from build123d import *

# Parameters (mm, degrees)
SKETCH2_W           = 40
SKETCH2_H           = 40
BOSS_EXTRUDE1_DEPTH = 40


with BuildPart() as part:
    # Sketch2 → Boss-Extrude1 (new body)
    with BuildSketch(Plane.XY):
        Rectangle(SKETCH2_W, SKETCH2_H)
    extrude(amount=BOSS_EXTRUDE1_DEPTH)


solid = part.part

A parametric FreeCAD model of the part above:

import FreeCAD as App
import Part
import Sketcher

V = App.Vector
Q = App.Units.Quantity

doc = App.newDocument("Part")
body = doc.addObject("PartDesign::Body", "Body")

# Sketch on XY plane
sketch1 = body.newObject("Sketcher::SketchObject", "Sketch")
sketch1.AttachmentSupport = (doc.getObject("XY_Plane"), [""])
sketch1.MapMode = "FlatFace"
sketch1.addGeometry([
    Part.LineSegment(V(-20, 20, 0), V(-20, -20, 0)),
    Part.LineSegment(V(-20, -20, 0), V(20, -20, 0)),
    Part.LineSegment(V(20, -20, 0), V(20, 20, 0)),
    Part.LineSegment(V(20, 20, 0), V(-20, 20, 0)),
], False)
sketch1.addConstraint([
    Sketcher.Constraint("Coincident", 0, 2, 1, 1),
    Sketcher.Constraint("Coincident", 1, 2, 2, 1),
    Sketcher.Constraint("Coincident", 2, 2, 3, 1),
    Sketcher.Constraint("Coincident", 3, 2, 0, 1),
    Sketcher.Constraint("Vertical", 0),
    Sketcher.Constraint("Horizontal", 1),
    Sketcher.Constraint("Vertical", 2),
    Sketcher.Constraint("Horizontal", 3),
    Sketcher.Constraint("Symmetric", 0, 2, 2, 2, -1, 1),
    Sketcher.Constraint("Equal", 3, 0),
    Sketcher.Constraint("DistanceX", 1, 1, 1, 2, Q("40 mm")),
])
pad1 = body.newObject("PartDesign::Pad", "Pad")
pad1.Profile = sketch1
pad1.Length = 40

doc.recompute()
